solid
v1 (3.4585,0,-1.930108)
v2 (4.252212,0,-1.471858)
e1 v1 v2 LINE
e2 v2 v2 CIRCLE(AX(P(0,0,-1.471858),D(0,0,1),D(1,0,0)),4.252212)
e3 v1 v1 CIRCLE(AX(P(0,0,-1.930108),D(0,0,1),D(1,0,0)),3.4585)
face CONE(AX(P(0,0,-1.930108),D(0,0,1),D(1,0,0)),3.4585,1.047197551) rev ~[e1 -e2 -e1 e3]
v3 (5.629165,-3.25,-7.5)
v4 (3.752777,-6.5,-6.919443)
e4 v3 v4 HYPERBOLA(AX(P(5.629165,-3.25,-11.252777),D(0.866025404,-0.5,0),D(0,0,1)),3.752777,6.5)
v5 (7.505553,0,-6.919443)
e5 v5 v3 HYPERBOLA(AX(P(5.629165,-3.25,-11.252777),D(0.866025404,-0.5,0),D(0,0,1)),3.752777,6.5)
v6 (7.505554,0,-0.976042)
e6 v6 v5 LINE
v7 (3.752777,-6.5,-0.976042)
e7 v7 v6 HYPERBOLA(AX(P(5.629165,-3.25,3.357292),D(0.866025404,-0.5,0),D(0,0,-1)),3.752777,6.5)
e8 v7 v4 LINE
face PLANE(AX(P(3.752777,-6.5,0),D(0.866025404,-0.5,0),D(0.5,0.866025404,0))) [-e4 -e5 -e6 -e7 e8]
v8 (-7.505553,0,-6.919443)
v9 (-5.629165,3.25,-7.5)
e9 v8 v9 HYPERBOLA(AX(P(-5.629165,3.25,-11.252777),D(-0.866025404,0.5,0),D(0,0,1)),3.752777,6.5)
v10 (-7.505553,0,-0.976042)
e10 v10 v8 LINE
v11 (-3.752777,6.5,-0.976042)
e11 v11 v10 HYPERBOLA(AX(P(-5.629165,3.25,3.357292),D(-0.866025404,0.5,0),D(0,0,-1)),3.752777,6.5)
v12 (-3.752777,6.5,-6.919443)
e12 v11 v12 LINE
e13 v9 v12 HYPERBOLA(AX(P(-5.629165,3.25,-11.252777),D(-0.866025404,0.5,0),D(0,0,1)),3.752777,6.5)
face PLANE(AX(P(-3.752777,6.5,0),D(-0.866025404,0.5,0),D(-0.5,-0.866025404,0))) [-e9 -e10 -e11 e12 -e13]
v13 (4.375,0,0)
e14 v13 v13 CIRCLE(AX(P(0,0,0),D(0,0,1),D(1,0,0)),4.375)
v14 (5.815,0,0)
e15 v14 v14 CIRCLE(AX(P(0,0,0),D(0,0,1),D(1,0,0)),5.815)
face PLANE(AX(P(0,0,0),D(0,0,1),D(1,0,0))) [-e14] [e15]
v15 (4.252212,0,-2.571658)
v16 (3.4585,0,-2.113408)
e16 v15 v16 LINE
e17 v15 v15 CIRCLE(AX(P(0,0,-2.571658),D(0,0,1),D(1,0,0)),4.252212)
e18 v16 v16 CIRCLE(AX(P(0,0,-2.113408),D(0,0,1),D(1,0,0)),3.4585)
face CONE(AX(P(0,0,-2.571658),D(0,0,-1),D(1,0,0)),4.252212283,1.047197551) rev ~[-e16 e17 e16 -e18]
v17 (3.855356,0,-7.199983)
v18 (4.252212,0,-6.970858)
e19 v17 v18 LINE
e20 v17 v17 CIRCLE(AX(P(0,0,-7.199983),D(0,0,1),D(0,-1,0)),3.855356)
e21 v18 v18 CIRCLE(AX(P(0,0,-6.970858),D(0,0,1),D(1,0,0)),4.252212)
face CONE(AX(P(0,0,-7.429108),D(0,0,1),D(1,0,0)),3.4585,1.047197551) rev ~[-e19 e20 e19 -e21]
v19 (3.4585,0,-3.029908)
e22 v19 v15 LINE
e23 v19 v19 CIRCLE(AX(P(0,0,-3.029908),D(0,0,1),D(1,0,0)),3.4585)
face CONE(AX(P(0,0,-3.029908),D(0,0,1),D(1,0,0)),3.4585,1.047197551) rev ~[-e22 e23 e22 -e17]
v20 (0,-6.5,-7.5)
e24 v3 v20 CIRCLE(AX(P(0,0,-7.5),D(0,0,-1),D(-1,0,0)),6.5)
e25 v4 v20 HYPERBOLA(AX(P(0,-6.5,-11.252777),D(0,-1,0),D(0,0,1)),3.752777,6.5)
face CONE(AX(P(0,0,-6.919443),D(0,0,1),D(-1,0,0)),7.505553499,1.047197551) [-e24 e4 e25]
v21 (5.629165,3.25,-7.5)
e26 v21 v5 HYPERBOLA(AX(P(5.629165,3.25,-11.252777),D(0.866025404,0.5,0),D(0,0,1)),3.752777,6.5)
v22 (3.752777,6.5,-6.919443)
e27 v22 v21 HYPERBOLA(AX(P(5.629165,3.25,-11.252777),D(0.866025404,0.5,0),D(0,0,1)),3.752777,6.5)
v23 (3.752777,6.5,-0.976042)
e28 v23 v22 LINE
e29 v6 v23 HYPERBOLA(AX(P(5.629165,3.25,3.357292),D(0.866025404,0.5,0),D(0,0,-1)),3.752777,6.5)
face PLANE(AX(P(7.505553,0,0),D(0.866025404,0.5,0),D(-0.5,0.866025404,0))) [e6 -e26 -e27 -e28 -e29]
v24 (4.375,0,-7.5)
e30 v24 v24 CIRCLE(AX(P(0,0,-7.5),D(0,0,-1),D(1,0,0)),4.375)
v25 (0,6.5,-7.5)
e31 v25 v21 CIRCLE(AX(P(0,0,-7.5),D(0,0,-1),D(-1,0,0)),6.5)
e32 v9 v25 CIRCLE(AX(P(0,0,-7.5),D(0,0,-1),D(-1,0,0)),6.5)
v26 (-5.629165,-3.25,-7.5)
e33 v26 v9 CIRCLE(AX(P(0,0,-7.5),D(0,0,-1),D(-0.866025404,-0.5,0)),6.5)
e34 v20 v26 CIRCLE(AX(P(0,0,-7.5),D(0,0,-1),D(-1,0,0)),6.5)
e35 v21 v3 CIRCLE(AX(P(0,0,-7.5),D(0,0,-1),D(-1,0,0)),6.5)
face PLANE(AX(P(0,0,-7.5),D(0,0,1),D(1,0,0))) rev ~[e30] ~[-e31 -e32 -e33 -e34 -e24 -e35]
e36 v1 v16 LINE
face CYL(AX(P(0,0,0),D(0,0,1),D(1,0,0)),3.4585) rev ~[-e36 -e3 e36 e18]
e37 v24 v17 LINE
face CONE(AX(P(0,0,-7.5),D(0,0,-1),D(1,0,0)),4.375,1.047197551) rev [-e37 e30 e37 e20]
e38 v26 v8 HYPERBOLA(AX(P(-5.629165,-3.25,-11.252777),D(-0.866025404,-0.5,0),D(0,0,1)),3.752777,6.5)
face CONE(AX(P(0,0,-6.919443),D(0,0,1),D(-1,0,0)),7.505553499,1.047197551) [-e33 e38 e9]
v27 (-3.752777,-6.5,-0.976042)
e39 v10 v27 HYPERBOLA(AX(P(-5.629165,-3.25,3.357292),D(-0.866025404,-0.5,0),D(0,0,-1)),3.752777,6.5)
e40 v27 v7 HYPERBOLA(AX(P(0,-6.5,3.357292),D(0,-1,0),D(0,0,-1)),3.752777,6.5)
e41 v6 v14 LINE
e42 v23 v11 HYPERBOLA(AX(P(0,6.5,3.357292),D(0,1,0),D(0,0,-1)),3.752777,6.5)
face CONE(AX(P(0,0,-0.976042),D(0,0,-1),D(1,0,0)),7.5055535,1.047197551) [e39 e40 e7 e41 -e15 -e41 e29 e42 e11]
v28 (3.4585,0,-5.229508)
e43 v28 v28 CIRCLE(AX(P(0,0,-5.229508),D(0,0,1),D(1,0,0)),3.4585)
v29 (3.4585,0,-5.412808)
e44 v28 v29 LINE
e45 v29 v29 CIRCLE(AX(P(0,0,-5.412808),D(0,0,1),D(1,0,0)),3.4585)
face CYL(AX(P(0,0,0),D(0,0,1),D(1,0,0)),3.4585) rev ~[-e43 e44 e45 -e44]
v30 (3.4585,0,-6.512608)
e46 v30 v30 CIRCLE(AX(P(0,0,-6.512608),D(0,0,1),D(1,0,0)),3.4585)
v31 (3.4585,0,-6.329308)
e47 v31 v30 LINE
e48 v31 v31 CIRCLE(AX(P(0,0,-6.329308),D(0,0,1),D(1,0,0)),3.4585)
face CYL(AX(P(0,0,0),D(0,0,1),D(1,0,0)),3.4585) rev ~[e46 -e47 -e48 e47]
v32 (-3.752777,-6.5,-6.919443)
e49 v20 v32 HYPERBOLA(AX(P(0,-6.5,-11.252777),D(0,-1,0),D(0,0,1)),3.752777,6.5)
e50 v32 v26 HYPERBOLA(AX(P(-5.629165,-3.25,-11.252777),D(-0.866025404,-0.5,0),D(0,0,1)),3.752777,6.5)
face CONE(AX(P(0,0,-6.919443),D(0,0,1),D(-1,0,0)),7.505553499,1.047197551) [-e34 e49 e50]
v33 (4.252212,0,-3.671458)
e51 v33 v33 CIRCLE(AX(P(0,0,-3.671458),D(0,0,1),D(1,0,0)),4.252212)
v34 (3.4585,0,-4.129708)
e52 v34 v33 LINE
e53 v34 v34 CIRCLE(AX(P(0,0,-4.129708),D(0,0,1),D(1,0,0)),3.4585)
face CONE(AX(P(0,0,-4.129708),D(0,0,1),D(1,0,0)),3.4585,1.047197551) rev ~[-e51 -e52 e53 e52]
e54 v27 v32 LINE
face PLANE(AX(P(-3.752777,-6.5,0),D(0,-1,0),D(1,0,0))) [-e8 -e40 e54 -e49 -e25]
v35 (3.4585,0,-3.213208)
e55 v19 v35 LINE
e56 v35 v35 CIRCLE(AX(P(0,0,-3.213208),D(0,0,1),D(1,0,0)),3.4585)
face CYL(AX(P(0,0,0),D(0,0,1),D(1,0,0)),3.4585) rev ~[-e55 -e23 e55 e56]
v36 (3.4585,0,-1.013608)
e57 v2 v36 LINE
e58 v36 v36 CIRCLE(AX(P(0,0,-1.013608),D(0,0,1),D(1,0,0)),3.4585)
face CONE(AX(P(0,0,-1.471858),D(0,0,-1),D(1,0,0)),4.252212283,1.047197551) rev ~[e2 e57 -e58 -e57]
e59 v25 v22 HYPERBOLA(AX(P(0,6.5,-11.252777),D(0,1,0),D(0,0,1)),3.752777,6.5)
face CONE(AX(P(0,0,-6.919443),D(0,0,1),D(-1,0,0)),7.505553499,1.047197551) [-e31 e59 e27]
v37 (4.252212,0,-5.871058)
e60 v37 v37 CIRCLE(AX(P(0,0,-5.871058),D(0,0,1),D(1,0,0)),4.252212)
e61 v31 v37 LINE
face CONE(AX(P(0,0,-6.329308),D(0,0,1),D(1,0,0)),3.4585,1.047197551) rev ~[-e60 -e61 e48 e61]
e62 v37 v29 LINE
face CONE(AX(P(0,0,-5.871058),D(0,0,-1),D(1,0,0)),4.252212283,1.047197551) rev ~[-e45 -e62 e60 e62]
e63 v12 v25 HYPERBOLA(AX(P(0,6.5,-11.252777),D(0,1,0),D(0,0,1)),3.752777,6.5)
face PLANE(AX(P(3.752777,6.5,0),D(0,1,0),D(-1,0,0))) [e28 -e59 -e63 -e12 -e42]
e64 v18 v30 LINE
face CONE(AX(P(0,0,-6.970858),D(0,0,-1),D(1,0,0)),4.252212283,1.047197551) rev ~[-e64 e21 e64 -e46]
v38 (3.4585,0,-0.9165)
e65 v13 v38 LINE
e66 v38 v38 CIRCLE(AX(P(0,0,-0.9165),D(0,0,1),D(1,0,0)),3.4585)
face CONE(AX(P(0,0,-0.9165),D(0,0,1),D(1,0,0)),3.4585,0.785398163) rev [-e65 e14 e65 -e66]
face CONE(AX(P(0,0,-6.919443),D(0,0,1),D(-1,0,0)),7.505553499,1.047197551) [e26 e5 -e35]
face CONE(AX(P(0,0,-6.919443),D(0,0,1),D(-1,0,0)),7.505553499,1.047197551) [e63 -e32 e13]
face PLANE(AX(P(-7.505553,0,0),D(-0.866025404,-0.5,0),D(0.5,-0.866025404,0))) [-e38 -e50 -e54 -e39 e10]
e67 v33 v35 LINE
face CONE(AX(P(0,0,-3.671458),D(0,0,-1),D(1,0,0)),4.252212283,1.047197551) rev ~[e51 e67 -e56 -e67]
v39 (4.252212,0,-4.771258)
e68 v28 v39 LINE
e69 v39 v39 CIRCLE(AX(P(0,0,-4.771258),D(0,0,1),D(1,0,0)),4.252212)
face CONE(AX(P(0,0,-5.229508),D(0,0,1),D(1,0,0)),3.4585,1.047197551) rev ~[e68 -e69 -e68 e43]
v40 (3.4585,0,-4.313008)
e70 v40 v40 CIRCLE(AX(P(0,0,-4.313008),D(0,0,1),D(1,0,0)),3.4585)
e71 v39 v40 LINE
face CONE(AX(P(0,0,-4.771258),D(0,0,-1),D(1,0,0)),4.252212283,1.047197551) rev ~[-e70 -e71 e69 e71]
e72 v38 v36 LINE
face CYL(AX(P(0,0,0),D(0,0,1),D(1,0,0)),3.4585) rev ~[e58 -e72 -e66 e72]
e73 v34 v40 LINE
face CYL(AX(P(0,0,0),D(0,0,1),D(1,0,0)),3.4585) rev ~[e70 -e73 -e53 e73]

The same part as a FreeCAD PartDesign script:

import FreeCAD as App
import Part
import Sketcher
from FreeCAD import Vector
Q = App.Units.Quantity


def edges_at(feature, points):
    """Names of the edges that pass closest to the given points."""
    edges = feature.Shape.Edges
    near = lambda p: min(range(len(edges)), key=lambda i: edges[i].distToShape(Part.Vertex(*p))[0])
    return sorted({f"Edge{near(p) + 1}" for p in points})


def add_polygon(sketch, points):
    """Adds a closed chain of lines whose ends are joined by coincident constraints."""
    first, n = sketch.GeometryCount, len(points)
    for a, b in zip(points, points[1:] + points[:1]):
        sketch.addGeometry(Part.LineSegment(App.Vector(*a, 0), App.Vector(*b, 0)), False)
    for i in range(n):
        sketch.addConstraint(Sketcher.Constraint("Coincident", first + i, 2, first + (i + 1) % n, 1))

doc = App.newDocument("Part")
body = doc.addObject("PartDesign::Body", "Body")

# Sketch on XY plane
sketch1 = body.newObject("Sketcher::SketchObject", "Sketch")
sketch1.AttachmentSupport = (doc.getObject("XY_Plane"), [""])
sketch1.MapMode = "FlatFace"
add_polygon(sketch1, [(3.8, -6.5), (7.5, 0), (3.8, 6.5), (-3.8, 6.5), (-7.5, 0), (-3.8, -6.5)])  # lines 0-5
sketch1.addGeometry(Part.Circle(Vector(0, 0, 0), Vector(0, 0, 1), 3.5), False)  # 6
sketch1.addConstraint(Sketcher.Constraint("Horizontal", 2))
sketch1.addConstraint(Sketcher.Constraint("Horizontal", 5))
sketch1.addConstraint(Sketcher.Constraint("Coincident", 6, 3, -1, 1))
sketch1.addConstraint(Sketcher.Constraint("Symmetric", 0, 2, 3, 2, -1, 1))
sketch1.addConstraint(Sketcher.Constraint("Symmetric", 1, 2, 4, 2, -1, 1))
sketch1.addConstraint(Sketcher.Constraint("PointOnObject", 0, 2, -1))
sketch1.addConstraint(Sketcher.Constraint("Parallel", 0, 3))
sketch1.addConstraint(Sketcher.Constraint("Vertical", 2, 2, 4, 2))
sketch1.addConstraint(Sketcher.Constraint("Angle", 0, Q("60 deg")))
sketch1.addConstraint(Sketcher.Constraint("Diameter", 6, 6.917))
sketch1.addConstraint(Sketcher.Constraint("DistanceY", 4, 2, 2, 2, 13.0))
sketch1.addConstraint(Sketcher.Constraint("DistanceX", 2, 2, 2, 1, 7.505554))
pad1 = body.newObject("PartDesign::Pad", "Pad")
pad1.Profile = sketch1
pad1.Length = 7.5
pad1.Reversed = True

# Sketch on XZ plane
sketch2 = body.newObject("Sketcher::SketchObject", "Sketch001")
sketch2.AttachmentSupport = (doc.getObject("XZ_Plane"), [""])
sketch2.MapMode = "FlatFace"
add_polygon(sketch2, [(-7.5, -6.9), (-6.5, -7.5), (-7.5, -7.5)])  # lines 0-2
sketch2.addConstraint(Sketcher.Constraint("Horizontal", 1))
sketch2.addConstraint(Sketcher.Constraint("Vertical", 2))
sketch2.addConstraint(Sketcher.Constraint("Angle", 0, Q("-30 deg")))
sketch2.addConstraint(Sketcher.Constraint("DistanceX", 0, 2, -1, 1, 6.5))
sketch2.addConstraint(Sketcher.Constraint("DistanceY", 0, 2, -1, 1, 7.5))
sketch2.addConstraint(Sketcher.Constraint("DistanceX", 1, 2, 1, 1, 1.005553))
groove = body.newObject("PartDesign::Groove", "Groove")
groove.Profile = sketch2
groove.ReferenceAxis = (sketch2, ["V_Axis"])
groove.Angle = 360

# Sketch on XZ plane
sketch3 = body.newObject("Sketcher::SketchObject", "Sketch002")
sketch3.AttachmentSupport = (doc.getObject("XZ_Plane"), [""])
sketch3.MapMode = "FlatFace"
add_polygon(sketch3, [(4.4, -7.5), (3.5, -7.5), (3.5, -7)])  # lines 0-2
sketch3.addConstraint(Sketcher.Constraint("Horizontal", 0))
sketch3.addConstraint(Sketcher.Constraint("Vertical", 1))
sketch3.addConstraint(Sketcher.Constraint("Angle", 2, Q("-30 deg")))
sketch3.addConstraint(Sketcher.Constraint("DistanceY", 0, 2, -1, 1, 7.5))
sketch3.addConstraint(Sketcher.Constraint("DistanceX", 0, 2, 0, 1, 0.9165))
sketch3.addConstraint(Sketcher.Constraint("DistanceX", -1, 1, 2, 2, 4.375))
groove2 = body.newObject("PartDesign::Groove", "Groove001")
groove2.Profile = sketch3
groove2.ReferenceAxis = (sketch3, ["V_Axis"])
groove2.Angle = 360

# Sketch on XZ plane
sketch4 = body.newObject("Sketcher::SketchObject", "Sketch003")
sketch4.AttachmentSupport = (doc.getObject("XZ_Plane"), [""])
sketch4.MapMode = "FlatFace"
add_polygon(sketch4, [(5.8, 0), (7.5, 0), (7.5, -1)])  # lines 0-2
sketch4.addConstraint(Sketcher.Constraint("Horizontal", 0))
sketch4.addConstraint(Sketcher.Constraint("Vertical", 1))
sketch4.addConstraint(Sketcher.Constraint("PointOnObject", 0, 2, -1))
sketch4.addConstraint(Sketcher.Constraint("Angle", 2, Q("150 deg")))
sketch4.addConstraint(Sketcher.Constraint("DistanceX", -1, 1, 2, 2, 5.815))
sketch4.addConstraint(Sketcher.Constraint("DistanceY", 1, 2, 1, 1, 0.976042))
groove3 = body.newObject("PartDesign::Groove", "Groove002")
groove3.Profile = sketch4
groove3.ReferenceAxis = (sketch4, ["V_Axis"])
groove3.Angle = 360
doc.recompute()

chamfer = body.newObject("PartDesign::Chamfer", "Chamfer")
chamfer.Base = (groove3, edges_at(groove3, [(-3.458, 0, 0)]))
chamfer.Size = 0.9165

# Sketch on XZ plane
sketch5 = body.newObject("Sketcher::SketchObject", "Sketch004")
sketch5.AttachmentSupport = (doc.getObject("XZ_Plane"), [""])
sketch5.MapMode = "FlatFace"
add_polygon(sketch5, [(3.5, -7.4), (2.5, -7.4), (2.5, -6.5), (3.5, -6.5), (4.3, -7)])  # lines 0-4
sketch5.addConstraint(Sketcher.Constraint("Horizontal", 0))
sketch5.addConstraint(Sketcher.Constraint("Vertical", 1))
sketch5.addConstraint(Sketcher.Constraint("Horizontal", 2))
sketch5.addConstraint(Sketcher.Constraint("Vertical", 2, 2, 4, 2))
sketch5.addConstraint(Sketcher.Constraint("Equal", 2, 1))
sketch5.addConstraint(Sketcher.Constraint("Equal", 3, 4))
sketch5.addConstraint(Sketcher.Constraint("Angle", 3, Q("-30 deg")))
sketch5.addConstraint(Sketcher.Constraint("DistanceX", 0, 2, 0, 1, 0.9165))
sketch5.addConstraint(Sketcher.Constraint("DistanceX", -1, 1, 0, 2, 2.542))
sketch5.addConstraint(Sketcher.Constraint("DistanceY", 0, 2, -1, 1, 7.429108))
groove4 = body.newObject("PartDesign::Groove", "Groove003")
groove4.Profile = sketch5
groove4.ReferenceAxis = (sketch5, ["V_Axis"])
groove4.Angle = 360
doc.recompute()

linearpattern = body.newObject("PartDesign::LinearPattern", "LinearPattern")
linearpattern.Originals = [groove4]
linearpattern.Direction = (doc.getObject("Z_Axis"), [""])
linearpattern.Mode = "offset"
linearpattern.Offset = 1.0998
linearpattern.Occurrences = 6
body.Tip = linearpattern

doc.recompute()
